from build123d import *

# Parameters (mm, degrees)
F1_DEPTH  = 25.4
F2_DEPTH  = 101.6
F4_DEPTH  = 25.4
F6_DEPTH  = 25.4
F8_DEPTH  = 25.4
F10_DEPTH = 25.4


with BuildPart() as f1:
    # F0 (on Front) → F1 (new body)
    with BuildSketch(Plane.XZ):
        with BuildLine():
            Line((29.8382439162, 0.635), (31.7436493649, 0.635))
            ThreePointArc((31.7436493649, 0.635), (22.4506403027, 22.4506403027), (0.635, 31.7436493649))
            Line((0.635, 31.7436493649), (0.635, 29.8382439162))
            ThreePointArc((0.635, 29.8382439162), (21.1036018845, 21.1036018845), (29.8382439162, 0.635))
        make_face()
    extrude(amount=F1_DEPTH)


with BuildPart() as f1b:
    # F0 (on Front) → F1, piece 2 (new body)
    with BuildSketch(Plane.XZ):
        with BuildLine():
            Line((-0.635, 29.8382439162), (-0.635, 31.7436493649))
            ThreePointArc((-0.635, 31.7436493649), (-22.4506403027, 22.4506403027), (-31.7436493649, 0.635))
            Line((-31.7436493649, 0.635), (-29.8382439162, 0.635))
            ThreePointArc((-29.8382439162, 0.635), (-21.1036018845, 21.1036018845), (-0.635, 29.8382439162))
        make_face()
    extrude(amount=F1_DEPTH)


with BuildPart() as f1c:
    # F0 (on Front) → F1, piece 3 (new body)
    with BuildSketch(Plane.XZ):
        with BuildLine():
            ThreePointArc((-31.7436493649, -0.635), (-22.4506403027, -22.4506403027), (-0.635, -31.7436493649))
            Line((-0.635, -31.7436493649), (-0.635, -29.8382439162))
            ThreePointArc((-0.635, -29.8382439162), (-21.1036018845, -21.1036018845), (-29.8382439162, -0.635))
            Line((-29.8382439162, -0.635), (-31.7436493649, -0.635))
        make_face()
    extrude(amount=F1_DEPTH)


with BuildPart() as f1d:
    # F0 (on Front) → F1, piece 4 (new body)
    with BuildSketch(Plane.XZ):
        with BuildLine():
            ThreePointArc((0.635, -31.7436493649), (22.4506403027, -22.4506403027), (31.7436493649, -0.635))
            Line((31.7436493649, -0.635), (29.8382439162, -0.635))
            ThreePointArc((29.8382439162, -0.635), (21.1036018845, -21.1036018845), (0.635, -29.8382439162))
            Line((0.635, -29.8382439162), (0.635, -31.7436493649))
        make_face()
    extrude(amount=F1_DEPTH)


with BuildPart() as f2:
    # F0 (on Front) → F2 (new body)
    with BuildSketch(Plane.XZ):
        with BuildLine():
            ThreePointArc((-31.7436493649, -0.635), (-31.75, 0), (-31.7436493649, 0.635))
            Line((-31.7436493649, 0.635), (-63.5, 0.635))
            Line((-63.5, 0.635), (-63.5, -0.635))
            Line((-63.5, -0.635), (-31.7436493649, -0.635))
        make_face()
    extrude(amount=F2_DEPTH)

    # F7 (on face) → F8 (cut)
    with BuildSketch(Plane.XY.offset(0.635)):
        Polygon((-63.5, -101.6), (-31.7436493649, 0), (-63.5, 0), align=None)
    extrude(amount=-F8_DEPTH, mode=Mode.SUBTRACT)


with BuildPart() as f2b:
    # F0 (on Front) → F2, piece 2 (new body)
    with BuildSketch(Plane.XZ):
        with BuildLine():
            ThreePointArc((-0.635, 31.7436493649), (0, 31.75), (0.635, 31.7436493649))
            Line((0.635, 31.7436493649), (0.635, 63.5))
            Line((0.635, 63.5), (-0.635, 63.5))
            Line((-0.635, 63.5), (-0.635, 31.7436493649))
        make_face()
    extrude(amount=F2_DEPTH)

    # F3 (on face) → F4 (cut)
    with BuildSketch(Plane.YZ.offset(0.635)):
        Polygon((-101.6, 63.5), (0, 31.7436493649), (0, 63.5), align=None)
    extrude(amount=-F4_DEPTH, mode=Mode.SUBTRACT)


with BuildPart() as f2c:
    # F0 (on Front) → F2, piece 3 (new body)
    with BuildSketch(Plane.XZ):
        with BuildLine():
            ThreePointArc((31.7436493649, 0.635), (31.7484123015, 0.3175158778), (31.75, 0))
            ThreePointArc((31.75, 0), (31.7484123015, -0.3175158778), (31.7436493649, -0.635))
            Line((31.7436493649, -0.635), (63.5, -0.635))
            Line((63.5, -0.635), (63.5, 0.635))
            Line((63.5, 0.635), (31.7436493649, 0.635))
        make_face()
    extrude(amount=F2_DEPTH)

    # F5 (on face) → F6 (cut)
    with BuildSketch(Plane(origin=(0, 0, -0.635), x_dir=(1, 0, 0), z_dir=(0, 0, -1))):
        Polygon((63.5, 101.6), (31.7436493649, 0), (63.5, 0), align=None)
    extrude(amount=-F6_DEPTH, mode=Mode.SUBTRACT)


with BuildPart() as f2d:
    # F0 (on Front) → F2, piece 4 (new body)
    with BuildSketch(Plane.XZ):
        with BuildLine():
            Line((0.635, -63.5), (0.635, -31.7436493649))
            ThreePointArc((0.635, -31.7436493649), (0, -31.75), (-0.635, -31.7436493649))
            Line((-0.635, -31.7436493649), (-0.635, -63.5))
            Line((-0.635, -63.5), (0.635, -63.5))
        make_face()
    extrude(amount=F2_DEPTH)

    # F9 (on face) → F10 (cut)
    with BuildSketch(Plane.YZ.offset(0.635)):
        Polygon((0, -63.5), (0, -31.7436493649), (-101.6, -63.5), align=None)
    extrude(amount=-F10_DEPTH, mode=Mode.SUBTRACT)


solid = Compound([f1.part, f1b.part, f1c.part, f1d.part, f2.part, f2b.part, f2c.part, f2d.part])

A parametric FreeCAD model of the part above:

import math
import FreeCAD as App
import Part
import Sketcher

V = App.Vector
Q = App.Units.Quantity


def add_polygon(sketch, points):
    """Adds a closed chain of lines whose ends are joined by coincident constraints."""
    first, n = sketch.GeometryCount, len(points)
    for a, b in zip(points, points[1:] + points[:1]):
        sketch.addGeometry(Part.LineSegment(App.Vector(*a, 0), App.Vector(*b, 0)), False)
    for i in range(n):
        sketch.addConstraint(Sketcher.Constraint("Coincident", first + i, 2, first + (i + 1) % n, 1))

doc = App.newDocument("Part")
body = doc.addObject("PartDesign::Body", "Body")

# Sketch on XZ plane
sketch1 = doc.addObject("Sketcher::SketchObject", "Sketch")
body.addObject(sketch1)
sketch1.AttachmentSupport = (doc.XZ_Plane, [""])
sketch1.MapMode = "FlatFace"
sketch1.addGeometry(Part.LineSegment(V(29.838244, 0.635, 0), V(31.743649, 0.635, 0)), False)
sketch1.addGeometry(Part.ArcOfCircle(Part.Circle(V(0, 0, 0), V(0, 0, 1), 31.75), math.radians(1.145992), math.radians(88.854008)), False)
sketch1.addGeometry(Part.LineSegment(V(0.635, 31.743649, 0), V(0.635, 29.838244, 0)), False)
sketch1.addGeometry(Part.ArcOfCircle(Part.Circle(V(0, 0, 0), V(0, 0, 1), 29.845), math.radians(1.219151), math.radians(88.780849)), False)
sketch1.addConstraint(Sketcher.Constraint("Coincident", 0, 2, 1, 1))
sketch1.addConstraint(Sketcher.Constraint("Coincident", 1, 2, 2, 1))
sketch1.addConstraint(Sketcher.Constraint("Coincident", 2, 2, 3, 2))
sketch1.addConstraint(Sketcher.Constraint("Coincident", 3, 1, 0, 1))
sketch1.addConstraint(Sketcher.Constraint("Horizontal", 0))
sketch1.addConstraint(Sketcher.Constraint("Vertical", 2))
sketch1.addConstraint(Sketcher.Constraint("Coincident", 1, 3, -1, 1))
sketch1.addConstraint(Sketcher.Constraint("Coincident", 3, 3, -1, 1))
sketch1.addConstraint(Sketcher.Constraint("Radius", 1, Q("1.25 in")))
sketch1.addConstraint(Sketcher.Constraint("Radius", 3, Q("1.175 in")))
sketch1.addConstraint(Sketcher.Constraint("DistanceY", -1, 1, 0, 2, Q("0.025 in")))
sketch1.addConstraint(Sketcher.Constraint("DistanceX", -1, 1, 1, 2, Q("0.025 in")))
pad1 = doc.addObject("PartDesign::Pad", "Pad")
body.addObject(pad1)
pad1.Profile = sketch1
pad1.Length = Q("1 in")
body2 = doc.addObject("PartDesign::Body", "Body001")

# Sketch on XZ plane
sketch2 = doc.addObject("Sketcher::SketchObject", "Sketch001")
body2.addObject(sketch2)
sketch2.AttachmentSupport = (doc.getObject("XZ_Plane001"), [""])
sketch2.MapMode = "FlatFace"
sketch2.addGeometry(Part.LineSegment(V(-0.635, 29.838244, 0), V(-0.635, 31.743649, 0)), False)
sketch2.addGeometry(Part.ArcOfCircle(Part.Circle(V(0, 0, 0), V(0, 0, 1), 31.75), math.radians(91.145992), math.radians(178.854008)), False)
sketch2.addGeometry(Part.LineSegment(V(-31.743649, 0.635, 0), V(-29.838244, 0.635, 0)), False)
sketch2.addGeometry(Part.ArcOfCircle(Part.Circle(V(0, 0, 0), V(0, 0, 1), 29.845), math.radians(91.219151), math.radians(178.780849)), False)
sketch2.addConstraint(Sketcher.Constraint("Coincident", 0, 2, 1, 1))
sketch2.addConstraint(Sketcher.Constraint("Coincident", 1, 2, 2, 1))
sketch2.addConstraint(Sketcher.Constraint("Coincident", 2, 2, 3, 2))
sketch2.addConstraint(Sketcher.Constraint("Coincident", 3, 1, 0, 1))
sketch2.addConstraint(Sketcher.Constraint("Vertical", 0))
sketch2.addConstraint(Sketcher.Constraint("Horizontal", 2))
sketch2.addConstraint(Sketcher.Constraint("Coincident", 1, 3, -1, 1))
sketch2.addConstraint(Sketcher.Constraint("Coincident", 3, 3, -1, 1))
sketch2.addConstraint(Sketcher.Constraint("Radius", 1, Q("1.25 in")))
sketch2.addConstraint(Sketcher.Constraint("Radius", 3, Q("1.175 in")))
sketch2.addConstraint(Sketcher.Constraint("DistanceX", 0, 2, -1, 1, Q("0.025 in")))
sketch2.addConstraint(Sketcher.Constraint("DistanceY", -1, 1, 1, 2, Q("0.025 in")))
pad2 = doc.addObject("PartDesign::Pad", "Pad001")
body2.addObject(pad2)
pad2.Profile = sketch2
pad2.Length = Q("1 in")
body3 = doc.addObject("PartDesign::Body", "Body002")

# Sketch on XZ plane
sketch3 = doc.addObject("Sketcher::SketchObject", "Sketch002")
body3.addObject(sketch3)
sketch3.AttachmentSupport = (doc.getObject("XZ_Plane002"), [""])
sketch3.MapMode = "FlatFace"
sketch3.addGeometry(Part.ArcOfCircle(Part.Circle(V(0, 0, 0), V(0, 0, 1), 31.75), math.radians(-178.854008), math.radians(-91.145992)), False)
sketch3.addGeometry(Part.LineSegment(V(-0.635, -31.743649, 0), V(-0.635, -29.838244, 0)), False)
sketch3.addGeometry(Part.ArcOfCircle(Part.Circle(V(0, 0, 0), V(0, 0, 1), 29.845), math.radians(-178.780849), math.radians(-91.219151)), False)
sketch3.addGeometry(Part.LineSegment(V(-29.838244, -0.635, 0), V(-31.743649, -0.635, 0)), False)
sketch3.addConstraint(Sketcher.Constraint("Coincident", 0, 2, 1, 1))
sketch3.addConstraint(Sketcher.Constraint("Coincident", 1, 2, 2, 2))
sketch3.addConstraint(Sketcher.Constraint("Coincident", 2, 1, 3, 1))
sketch3.addConstraint(Sketcher.Constraint("Coincident", 3, 2, 0, 1))
sketch3.addConstraint(Sketcher.Constraint("Vertical", 1))
sketch3.addConstraint(Sketcher.Constraint("Horizontal", 3))
sketch3.addConstraint(Sketcher.Constraint("Coincident", 0, 3, -1, 1))
sketch3.addConstraint(Sketcher.Constraint("Coincident", 2, 3, -1, 1))
sketch3.addConstraint(Sketcher.Constraint("Radius", 0, Q("1.25 in")))
sketch3.addConstraint(Sketcher.Constraint("Radius", 2, Q("1.175 in")))
sketch3.addConstraint(Sketcher.Constraint("DistanceX", 0, 2, -1, 1, Q("0.025 in")))
sketch3.addConstraint(Sketcher.Constraint("DistanceY", 2, 1, -1, 1, Q("0.025 in")))
pad3 = doc.addObject("PartDesign::Pad", "Pad002")
body3.addObject(pad3)
pad3.Profile = sketch3
pad3.Length = Q("1 in")
body4 = doc.addObject("PartDesign::Body", "Body003")

# Sketch on XZ plane
sketch4 = doc.addObject("Sketcher::SketchObject", "Sketch003")
body4.addObject(sketch4)
sketch4.AttachmentSupport = (doc.getObject("XZ_Plane003"), [""])
sketch4.MapMode = "FlatFace"
sketch4.addGeometry(Part.ArcOfCircle(Part.Circle(V(0, 0, 0), V(0, 0, 1), 31.75), math.radians(-88.854008), math.radians(-1.145992)), False)
sketch4.addGeometry(Part.LineSegment(V(31.743649, -0.635, 0), V(29.838244, -0.635, 0)), False)
sketch4.addGeometry(Part.ArcOfCircle(Part.Circle(V(0, 0, 0), V(0, 0, 1), 29.845), math.radians(-88.780849), math.radians(-1.219151)), False)
sketch4.addGeometry(Part.LineSegment(V(0.635, -29.838244, 0), V(0.635, -31.743649, 0)), False)
sketch4.addConstraint(Sketcher.Constraint("Coincident", 0, 2, 1, 1))
sketch4.addConstraint(Sketcher.Constraint("Coincident", 1, 2, 2, 2))
sketch4.addConstraint(Sketcher.Constraint("Coincident", 2, 1, 3, 1))
sketch4.addConstraint(Sketcher.Constraint("Coincident", 3, 2, 0, 1))
sketch4.addConstraint(Sketcher.Constraint("Horizontal", 1))
sketch4.addConstraint(Sketcher.Constraint("Vertical", 3))
sketch4.addConstraint(Sketcher.Constraint("Coincident", 0, 3, -1, 1))
sketch4.addConstraint(Sketcher.Constraint("Coincident", 2, 3, -1, 1))
sketch4.addConstraint(Sketcher.Constraint("Radius", 0, Q("1.25 in")))
sketch4.addConstraint(Sketcher.Constraint("Radius", 2, Q("1.175 in")))
sketch4.addConstraint(Sketcher.Constraint("DistanceY", 0, 2, -1, 1, Q("0.025 in")))
sketch4.addConstraint(Sketcher.Constraint("DistanceX", -1, 1, 2, 1, Q("0.025 in")))
pad4 = doc.addObject("PartDesign::Pad", "Pad003")
body4.addObject(pad4)
pad4.Profile = sketch4
pad4.Length = Q("1 in")
body5 = doc.addObject("PartDesign::Body", "Body004")

# Sketch on XZ plane
sketch5 = doc.addObject("Sketcher::SketchObject", "Sketch004")
body5.addObject(sketch5)
sketch5.AttachmentSupport = (doc.getObject("XZ_Plane004"), [""])
sketch5.MapMode = "FlatFace"
sketch5.addGeometry(Part.ArcOfCircle(Part.Circle(V(0, 0, 0), V(0, 0, 1), 31.75), math.radians(178.854008), math.radians(181.145992)), False)
sketch5.addGeometry(Part.LineSegment(V(-31.743649, 0.635, 0), V(-63.5, 0.635, 0)), False)
sketch5.addGeometry(Part.LineSegment(V(-63.5, 0.635, 0), V(-63.5, -0.635, 0)), False)
sketch5.addGeometry(Part.LineSegment(V(-63.5, -0.635, 0), V(-31.743649, -0.635, 0)), False)
sketch5.addConstraint(Sketcher.Constraint("Coincident", 0, 1, 1, 1))
sketch5.addConstraint(Sketcher.Constraint("Coincident", 1, 2, 2, 1))
sketch5.addConstraint(Sketcher.Constraint("Coincident", 2, 2, 3, 1))
sketch5.addConstraint(Sketcher.Constraint("Coincident", 3, 2, 0, 2))
sketch5.addConstraint(Sketcher.Constraint("Horizontal", 1))
sketch5.addConstraint(Sketcher.Constraint("Vertical", 2))
sketch5.addConstraint(Sketcher.Constraint("Horizontal", 3))
sketch5.addConstraint(Sketcher.Constraint("Coincident", 0, 3, -1, 1))
sketch5.addConstraint(Sketcher.Constraint("Vertical", 0, 1, 3, 2))
sketch5.addConstraint(Sketcher.Constraint("Radius", 0, Q("1.25 in")))
sketch5.addConstraint(Sketcher.Constraint("DistanceY", 2, 2, 2, 1, Q("0.05 in")))
sketch5.addConstraint(Sketcher.Constraint("DistanceX", 1, 2, -1, 1, Q("2.5 in")))
pad5 = doc.addObject("PartDesign::Pad", "Pad004")
body5.addObject(pad5)
pad5.Profile = sketch5
pad5.Length = Q("4 in")

# Sketch on XY plane
sketch6 = doc.addObject("Sketcher::SketchObject", "Sketch005")
body5.addObject(sketch6)
sketch6.AttachmentSupport = (doc.getObject("XY_Plane004"), [""])
sketch6.MapMode = "FlatFace"
sketch6.AttachmentOffset = App.Placement(V(0, 0, 0.025 * 25.4), App.Rotation())
add_polygon(sketch6, [(-63.5, -101.6), (-31.743649, 0), (-63.5, 0)])  # lines 0-2
sketch6.addConstraint(Sketcher.Constraint("Horizontal", 1))
sketch6.addConstraint(Sketcher.Constraint("Vertical", 2))
sketch6.addConstraint(Sketcher.Constraint("PointOnObject", 0, 2, -1))
sketch6.addConstraint(Sketcher.Constraint("DistanceY", 2, 2, 2, 1, Q("4 in")))
sketch6.addConstraint(Sketcher.Constraint("DistanceX", 1, 2, -1, 1, Q("2.5 in")))
sketch6.addConstraint(Sketcher.Constraint("DistanceX", 1, 2, 1, 1, 31.756351))
pocket1 = doc.addObject("PartDesign::Pocket", "Pocket")
body5.addObject(pocket1)
pocket1.Profile = sketch6
pocket1.Length = Q("1 in")
body6 = doc.addObject("PartDesign::Body", "Body005")

# Sketch on XZ plane
sketch7 = doc.addObject("Sketcher::SketchObject", "Sketch006")
body6.addObject(sketch7)
sketch7.AttachmentSupport = (doc.getObject("XZ_Plane005"), [""])
sketch7.MapMode = "FlatFace"
sketch7.addGeometry(Part.ArcOfCircle(Part.Circle(V(0, 0, 0), V(0, 0, 1), 31.75), math.radians(88.854008), math.radians(91.145992)), False)
sketch7.addGeometry(Part.LineSegment(V(0.635, 31.743649, 0), V(0.635, 63.5, 0)), False)
sketch7.addGeometry(Part.LineSegment(V(0.635, 63.5, 0), V(-0.635, 63.5, 0)), False)
sketch7.addGeometry(Part.LineSegment(V(-0.635, 63.5, 0), V(-0.635, 31.743649, 0)), False)
sketch7.addConstraint(Sketcher.Constraint("Coincident", 0, 1, 1, 1))
sketch7.addConstraint(Sketcher.Constraint("Coincident", 1, 2, 2, 1))
sketch7.addConstraint(Sketcher.Constraint("Coincident", 2, 2, 3, 1))
sketch7.addConstraint(Sketcher.Constraint("Coincident", 3, 2, 0, 2))
sketch7.addConstraint(Sketcher.Constraint("Vertical", 1))
sketch7.addConstraint(Sketcher.Constraint("Horizontal", 2))
sketch7.addConstraint(Sketcher.Constraint("Vertical", 3))
sketch7.addConstraint(Sketcher.Constraint("Coincident", 0, 3, -1, 1))
sketch7.addConstraint(Sketcher.Constraint("Horizontal", 0, 1, 3, 2))
sketch7.addConstraint(Sketcher.Constraint("Radius", 0, Q("1.25 in")))
sketch7.addConstraint(Sketcher.Constraint("DistanceX", 2, 2, 2, 1, Q("0.05 in")))
sketch7.addConstraint(Sketcher.Constraint("DistanceY", -1, 1, 1, 2, Q("2.5 in")))
pad6 = doc.addObject("PartDesign::Pad", "Pad005")
body6.addObject(pad6)
pad6.Profile = sketch7
pad6.Length = Q("4 in")

# Sketch on YZ plane
sketch8 = doc.addObject("Sketcher::SketchObject", "Sketch007")
body6.addObject(sketch8)
sketch8.AttachmentSupport = (doc.getObject("YZ_Plane005"), [""])
sketch8.MapMode = "FlatFace"
sketch8.AttachmentOffset = App.Placement(V(0, 0, 0.025 * 25.4), App.Rotation())
add_polygon(sketch8, [(-101.6, 63.5), (0, 31.743649), (0, 63.5)])  # lines 0-2
sketch8.addConstraint(Sketcher.Constraint("Vertical", 1))
sketch8.addConstraint(Sketcher.Constraint("Horizontal", 2))
sketch8.addConstraint(Sketcher.Constraint("PointOnObject", 0, 2, -2))
sketch8.addConstraint(Sketcher.Constraint("DistanceX", 2, 2, 2, 1, Q("4 in")))
sketch8.addConstraint(Sketcher.Constraint("DistanceY", -1, 1, 1, 2, Q("2.5 in")))
sketch8.addConstraint(Sketcher.Constraint("DistanceY", 1, 1, 1, 2, 31.756351))
pocket2 = doc.addObject("PartDesign::Pocket", "Pocket001")
body6.addObject(pocket2)
pocket2.Profile = sketch8
pocket2.Length = Q("1 in")
body7 = doc.addObject("PartDesign::Body", "Body006")

# Sketch on XZ plane
sketch9 = doc.addObject("Sketcher::SketchObject", "Sketch008")
body7.addObject(sketch9)
sketch9.AttachmentSupport = (doc.getObject("XZ_Plane006"), [""])
sketch9.MapMode = "FlatFace"
sketch9.addGeometry(Part.ArcOfCircle(Part.Circle(V(-0.000001, 0, 0), V(0, 0, 1), 31.750001), math.radians(0), math.radians(1.145992)), False)
sketch9.addGeometry(Part.ArcOfCircle(Part.Circle(V(-0.000001, 0, 0), V(0, 0, 1), 31.750001), math.radians(-1.145992), math.radians(0)), False)
sketch9.addGeometry(Part.LineSegment(V(31.743649, -0.635, 0), V(63.5, -0.635, 0)), False)
sketch9.addGeometry(Part.LineSegment(V(63.5, -0.635, 0), V(63.5, 0.635, 0)), False)
sketch9.addGeometry(Part.LineSegment(V(63.5, 0.635, 0), V(31.743649, 0.635, 0)), False)
sketch9.addConstraint(Sketcher.Constraint("Tangent", 0, 1, 1, 2))
sketch9.addConstraint(Sketcher.Constraint("Coincident", 1, 1, 2, 1))
sketch9.addConstraint(Sketcher.Constraint("Coincident", 2, 2, 3, 1))
sketch9.addConstraint(Sketcher.Constraint("Coincident", 3, 2, 4, 1))
sketch9.addConstraint(Sketcher.Constraint("Coincident", 4, 2, 0, 2))
sketch9.addConstraint(Sketcher.Constraint("Horizontal", 2))
sketch9.addConstraint(Sketcher.Constraint("Vertical", 3))
sketch9.addConstraint(Sketcher.Constraint("Horizontal", 4))
sketch9.addConstraint(Sketcher.Constraint("Coincident", 0, 3, -1, 1))
sketch9.addConstraint(Sketcher.Constraint("Equal", 0, 1))
sketch9.addConstraint(Sketcher.Constraint("PointOnObject", 0, 1, -1))
sketch9.addConstraint(Sketcher.Constraint("Vertical", 1, 1, 4, 2))
sketch9.addConstraint(Sketcher.Constraint("Radius", 0, Q("1.25 in")))
sketch9.addConstraint(Sketcher.Constraint("DistanceY", 3, 1, 3, 2, Q("0.05 in")))
sketch9.addConstraint(Sketcher.Constraint("DistanceX", -1, 1, 2, 2, Q("2.5 in")))
pad7 = doc.addObject("PartDesign::Pad", "Pad006")
body7.addObject(pad7)
pad7.Profile = sketch9
pad7.Length = Q("4 in")

# Sketch on XY plane
sketch10 = doc.addObject("Sketcher::SketchObject", "Sketch009")
body7.addObject(sketch10)
sketch10.AttachmentSupport = (doc.getObject("XY_Plane006"), [""])
sketch10.MapMode = "FlatFace"
sketch10.AttachmentOffset = App.Placement(V(0, 0, -0.025 * 25.4), App.Rotation())
add_polygon(sketch10, [(63.5, -101.6), (31.743649, 0), (63.5, 0)])  # lines 0-2
sketch10.addConstraint(Sketcher.Constraint("Horizontal", 1))
sketch10.addConstraint(Sketcher.Constraint("Vertical", 2))
sketch10.addConstraint(Sketcher.Constraint("PointOnObject", 0, 2, -1))
sketch10.addConstraint(Sketcher.Constraint("DistanceY", 2, 2, 2, 1, Q("4 in")))
sketch10.addConstraint(Sketcher.Constraint("DistanceX", -1, 1, 1, 2, Q("2.5 in")))
sketch10.addConstraint(Sketcher.Constraint("DistanceX", 1, 1, 1, 2, 31.756351))
pocket3 = doc.addObject("PartDesign::Pocket", "Pocket002")
body7.addObject(pocket3)
pocket3.Profile = sketch10
pocket3.Length = Q("1 in")
pocket3.Reversed = True
body8 = doc.addObject("PartDesign::Body", "Body007")

# Sketch on XZ plane
sketch11 = doc.addObject("Sketcher::SketchObject", "Sketch010")
body8.addObject(sketch11)
sketch11.AttachmentSupport = (doc.getObject("XZ_Plane007"), [""])
sketch11.MapMode = "FlatFace"
sketch11.addGeometry(Part.LineSegment(V(0.635, -63.5, 0), V(0.635, -31.743649, 0)), False)
sketch11.addGeometry(Part.ArcOfCircle(Part.Circle(V(0, 0, 0), V(0, 0, 1), 31.75), math.radians(-91.145992), math.radians(-88.854008)), False)
sketch11.addGeometry(Part.LineSegment(V(-0.635, -31.743649, 0), V(-0.635, -63.5, 0)), False)
sketch11.addGeometry(Part.LineSegment(V(-0.635, -63.5, 0), V(0.635, -63.5, 0)), False)
sketch11.addConstraint(Sketcher.Constraint("Coincident", 0, 2, 1, 2))
sketch11.addConstraint(Sketcher.Constraint("Coincident", 1, 1, 2, 1))
sketch11.addConstraint(Sketcher.Constraint("Coincident", 2, 2, 3, 1))
sketch11.addConstraint(Sketcher.Constraint("Coincident", 3, 2, 0, 1))
sketch11.addConstraint(Sketcher.Constraint("Vertical", 0))
sketch11.addConstraint(Sketcher.Constraint("Vertical", 2))
sketch11.addConstraint(Sketcher.Constraint("Horizontal", 3))
sketch11.addConstraint(Sketcher.Constraint("Coincident", 1, 3, -1, 1))
sketch11.addConstraint(Sketcher.Constraint("Horizontal", 0, 2, 1, 1))
sketch11.addConstraint(Sketcher.Constraint("Radius", 1, Q("1.25 in")))
sketch11.addConstraint(Sketcher.Constraint("DistanceX", 3, 1, 3, 2, Q("0.05 in")))
sketch11.addConstraint(Sketcher.Constraint("DistanceY", 2, 2, -1, 1, Q("2.5 in")))
pad8 = doc.addObject("PartDesign::Pad", "Pad007")
body8.addObject(pad8)
pad8.Profile = sketch11
pad8.Length = Q("4 in")

# Sketch on YZ plane
sketch12 = doc.addObject("Sketcher::SketchObject", "Sketch011")
body8.addObject(sketch12)
sketch12.AttachmentSupport = (doc.getObject("YZ_Plane007"), [""])
sketch12.MapMode = "FlatFace"
sketch12.AttachmentOffset = App.Placement(V(0, 0, 0.025 * 25.4), App.Rotation())
add_polygon(sketch12, [(0, -63.5), (0, -31.743649), (-101.6, -63.5)])  # lines 0-2
sketch12.addConstraint(Sketcher.Constraint("Vertical", 0))
sketch12.addConstraint(Sketcher.Constraint("Horizontal", 2))
sketch12.addConstraint(Sketcher.Constraint("PointOnObject", 0, 2, -2))
sketch12.addConstraint(Sketcher.Constraint("DistanceX", 2, 1, 2, 2, Q("4 in")))
sketch12.addConstraint(Sketcher.Constraint("DistanceY", 1, 2, -1, 1, Q("2.5 in")))
sketch12.addConstraint(Sketcher.Constraint("DistanceY", 0, 1, 0, 2, 31.756351))
pocket4 = doc.addObject("PartDesign::Pocket", "Pocket003")
body8.addObject(pocket4)
pocket4.Profile = sketch12
pocket4.Length = Q("1 in")

doc.recompute()
